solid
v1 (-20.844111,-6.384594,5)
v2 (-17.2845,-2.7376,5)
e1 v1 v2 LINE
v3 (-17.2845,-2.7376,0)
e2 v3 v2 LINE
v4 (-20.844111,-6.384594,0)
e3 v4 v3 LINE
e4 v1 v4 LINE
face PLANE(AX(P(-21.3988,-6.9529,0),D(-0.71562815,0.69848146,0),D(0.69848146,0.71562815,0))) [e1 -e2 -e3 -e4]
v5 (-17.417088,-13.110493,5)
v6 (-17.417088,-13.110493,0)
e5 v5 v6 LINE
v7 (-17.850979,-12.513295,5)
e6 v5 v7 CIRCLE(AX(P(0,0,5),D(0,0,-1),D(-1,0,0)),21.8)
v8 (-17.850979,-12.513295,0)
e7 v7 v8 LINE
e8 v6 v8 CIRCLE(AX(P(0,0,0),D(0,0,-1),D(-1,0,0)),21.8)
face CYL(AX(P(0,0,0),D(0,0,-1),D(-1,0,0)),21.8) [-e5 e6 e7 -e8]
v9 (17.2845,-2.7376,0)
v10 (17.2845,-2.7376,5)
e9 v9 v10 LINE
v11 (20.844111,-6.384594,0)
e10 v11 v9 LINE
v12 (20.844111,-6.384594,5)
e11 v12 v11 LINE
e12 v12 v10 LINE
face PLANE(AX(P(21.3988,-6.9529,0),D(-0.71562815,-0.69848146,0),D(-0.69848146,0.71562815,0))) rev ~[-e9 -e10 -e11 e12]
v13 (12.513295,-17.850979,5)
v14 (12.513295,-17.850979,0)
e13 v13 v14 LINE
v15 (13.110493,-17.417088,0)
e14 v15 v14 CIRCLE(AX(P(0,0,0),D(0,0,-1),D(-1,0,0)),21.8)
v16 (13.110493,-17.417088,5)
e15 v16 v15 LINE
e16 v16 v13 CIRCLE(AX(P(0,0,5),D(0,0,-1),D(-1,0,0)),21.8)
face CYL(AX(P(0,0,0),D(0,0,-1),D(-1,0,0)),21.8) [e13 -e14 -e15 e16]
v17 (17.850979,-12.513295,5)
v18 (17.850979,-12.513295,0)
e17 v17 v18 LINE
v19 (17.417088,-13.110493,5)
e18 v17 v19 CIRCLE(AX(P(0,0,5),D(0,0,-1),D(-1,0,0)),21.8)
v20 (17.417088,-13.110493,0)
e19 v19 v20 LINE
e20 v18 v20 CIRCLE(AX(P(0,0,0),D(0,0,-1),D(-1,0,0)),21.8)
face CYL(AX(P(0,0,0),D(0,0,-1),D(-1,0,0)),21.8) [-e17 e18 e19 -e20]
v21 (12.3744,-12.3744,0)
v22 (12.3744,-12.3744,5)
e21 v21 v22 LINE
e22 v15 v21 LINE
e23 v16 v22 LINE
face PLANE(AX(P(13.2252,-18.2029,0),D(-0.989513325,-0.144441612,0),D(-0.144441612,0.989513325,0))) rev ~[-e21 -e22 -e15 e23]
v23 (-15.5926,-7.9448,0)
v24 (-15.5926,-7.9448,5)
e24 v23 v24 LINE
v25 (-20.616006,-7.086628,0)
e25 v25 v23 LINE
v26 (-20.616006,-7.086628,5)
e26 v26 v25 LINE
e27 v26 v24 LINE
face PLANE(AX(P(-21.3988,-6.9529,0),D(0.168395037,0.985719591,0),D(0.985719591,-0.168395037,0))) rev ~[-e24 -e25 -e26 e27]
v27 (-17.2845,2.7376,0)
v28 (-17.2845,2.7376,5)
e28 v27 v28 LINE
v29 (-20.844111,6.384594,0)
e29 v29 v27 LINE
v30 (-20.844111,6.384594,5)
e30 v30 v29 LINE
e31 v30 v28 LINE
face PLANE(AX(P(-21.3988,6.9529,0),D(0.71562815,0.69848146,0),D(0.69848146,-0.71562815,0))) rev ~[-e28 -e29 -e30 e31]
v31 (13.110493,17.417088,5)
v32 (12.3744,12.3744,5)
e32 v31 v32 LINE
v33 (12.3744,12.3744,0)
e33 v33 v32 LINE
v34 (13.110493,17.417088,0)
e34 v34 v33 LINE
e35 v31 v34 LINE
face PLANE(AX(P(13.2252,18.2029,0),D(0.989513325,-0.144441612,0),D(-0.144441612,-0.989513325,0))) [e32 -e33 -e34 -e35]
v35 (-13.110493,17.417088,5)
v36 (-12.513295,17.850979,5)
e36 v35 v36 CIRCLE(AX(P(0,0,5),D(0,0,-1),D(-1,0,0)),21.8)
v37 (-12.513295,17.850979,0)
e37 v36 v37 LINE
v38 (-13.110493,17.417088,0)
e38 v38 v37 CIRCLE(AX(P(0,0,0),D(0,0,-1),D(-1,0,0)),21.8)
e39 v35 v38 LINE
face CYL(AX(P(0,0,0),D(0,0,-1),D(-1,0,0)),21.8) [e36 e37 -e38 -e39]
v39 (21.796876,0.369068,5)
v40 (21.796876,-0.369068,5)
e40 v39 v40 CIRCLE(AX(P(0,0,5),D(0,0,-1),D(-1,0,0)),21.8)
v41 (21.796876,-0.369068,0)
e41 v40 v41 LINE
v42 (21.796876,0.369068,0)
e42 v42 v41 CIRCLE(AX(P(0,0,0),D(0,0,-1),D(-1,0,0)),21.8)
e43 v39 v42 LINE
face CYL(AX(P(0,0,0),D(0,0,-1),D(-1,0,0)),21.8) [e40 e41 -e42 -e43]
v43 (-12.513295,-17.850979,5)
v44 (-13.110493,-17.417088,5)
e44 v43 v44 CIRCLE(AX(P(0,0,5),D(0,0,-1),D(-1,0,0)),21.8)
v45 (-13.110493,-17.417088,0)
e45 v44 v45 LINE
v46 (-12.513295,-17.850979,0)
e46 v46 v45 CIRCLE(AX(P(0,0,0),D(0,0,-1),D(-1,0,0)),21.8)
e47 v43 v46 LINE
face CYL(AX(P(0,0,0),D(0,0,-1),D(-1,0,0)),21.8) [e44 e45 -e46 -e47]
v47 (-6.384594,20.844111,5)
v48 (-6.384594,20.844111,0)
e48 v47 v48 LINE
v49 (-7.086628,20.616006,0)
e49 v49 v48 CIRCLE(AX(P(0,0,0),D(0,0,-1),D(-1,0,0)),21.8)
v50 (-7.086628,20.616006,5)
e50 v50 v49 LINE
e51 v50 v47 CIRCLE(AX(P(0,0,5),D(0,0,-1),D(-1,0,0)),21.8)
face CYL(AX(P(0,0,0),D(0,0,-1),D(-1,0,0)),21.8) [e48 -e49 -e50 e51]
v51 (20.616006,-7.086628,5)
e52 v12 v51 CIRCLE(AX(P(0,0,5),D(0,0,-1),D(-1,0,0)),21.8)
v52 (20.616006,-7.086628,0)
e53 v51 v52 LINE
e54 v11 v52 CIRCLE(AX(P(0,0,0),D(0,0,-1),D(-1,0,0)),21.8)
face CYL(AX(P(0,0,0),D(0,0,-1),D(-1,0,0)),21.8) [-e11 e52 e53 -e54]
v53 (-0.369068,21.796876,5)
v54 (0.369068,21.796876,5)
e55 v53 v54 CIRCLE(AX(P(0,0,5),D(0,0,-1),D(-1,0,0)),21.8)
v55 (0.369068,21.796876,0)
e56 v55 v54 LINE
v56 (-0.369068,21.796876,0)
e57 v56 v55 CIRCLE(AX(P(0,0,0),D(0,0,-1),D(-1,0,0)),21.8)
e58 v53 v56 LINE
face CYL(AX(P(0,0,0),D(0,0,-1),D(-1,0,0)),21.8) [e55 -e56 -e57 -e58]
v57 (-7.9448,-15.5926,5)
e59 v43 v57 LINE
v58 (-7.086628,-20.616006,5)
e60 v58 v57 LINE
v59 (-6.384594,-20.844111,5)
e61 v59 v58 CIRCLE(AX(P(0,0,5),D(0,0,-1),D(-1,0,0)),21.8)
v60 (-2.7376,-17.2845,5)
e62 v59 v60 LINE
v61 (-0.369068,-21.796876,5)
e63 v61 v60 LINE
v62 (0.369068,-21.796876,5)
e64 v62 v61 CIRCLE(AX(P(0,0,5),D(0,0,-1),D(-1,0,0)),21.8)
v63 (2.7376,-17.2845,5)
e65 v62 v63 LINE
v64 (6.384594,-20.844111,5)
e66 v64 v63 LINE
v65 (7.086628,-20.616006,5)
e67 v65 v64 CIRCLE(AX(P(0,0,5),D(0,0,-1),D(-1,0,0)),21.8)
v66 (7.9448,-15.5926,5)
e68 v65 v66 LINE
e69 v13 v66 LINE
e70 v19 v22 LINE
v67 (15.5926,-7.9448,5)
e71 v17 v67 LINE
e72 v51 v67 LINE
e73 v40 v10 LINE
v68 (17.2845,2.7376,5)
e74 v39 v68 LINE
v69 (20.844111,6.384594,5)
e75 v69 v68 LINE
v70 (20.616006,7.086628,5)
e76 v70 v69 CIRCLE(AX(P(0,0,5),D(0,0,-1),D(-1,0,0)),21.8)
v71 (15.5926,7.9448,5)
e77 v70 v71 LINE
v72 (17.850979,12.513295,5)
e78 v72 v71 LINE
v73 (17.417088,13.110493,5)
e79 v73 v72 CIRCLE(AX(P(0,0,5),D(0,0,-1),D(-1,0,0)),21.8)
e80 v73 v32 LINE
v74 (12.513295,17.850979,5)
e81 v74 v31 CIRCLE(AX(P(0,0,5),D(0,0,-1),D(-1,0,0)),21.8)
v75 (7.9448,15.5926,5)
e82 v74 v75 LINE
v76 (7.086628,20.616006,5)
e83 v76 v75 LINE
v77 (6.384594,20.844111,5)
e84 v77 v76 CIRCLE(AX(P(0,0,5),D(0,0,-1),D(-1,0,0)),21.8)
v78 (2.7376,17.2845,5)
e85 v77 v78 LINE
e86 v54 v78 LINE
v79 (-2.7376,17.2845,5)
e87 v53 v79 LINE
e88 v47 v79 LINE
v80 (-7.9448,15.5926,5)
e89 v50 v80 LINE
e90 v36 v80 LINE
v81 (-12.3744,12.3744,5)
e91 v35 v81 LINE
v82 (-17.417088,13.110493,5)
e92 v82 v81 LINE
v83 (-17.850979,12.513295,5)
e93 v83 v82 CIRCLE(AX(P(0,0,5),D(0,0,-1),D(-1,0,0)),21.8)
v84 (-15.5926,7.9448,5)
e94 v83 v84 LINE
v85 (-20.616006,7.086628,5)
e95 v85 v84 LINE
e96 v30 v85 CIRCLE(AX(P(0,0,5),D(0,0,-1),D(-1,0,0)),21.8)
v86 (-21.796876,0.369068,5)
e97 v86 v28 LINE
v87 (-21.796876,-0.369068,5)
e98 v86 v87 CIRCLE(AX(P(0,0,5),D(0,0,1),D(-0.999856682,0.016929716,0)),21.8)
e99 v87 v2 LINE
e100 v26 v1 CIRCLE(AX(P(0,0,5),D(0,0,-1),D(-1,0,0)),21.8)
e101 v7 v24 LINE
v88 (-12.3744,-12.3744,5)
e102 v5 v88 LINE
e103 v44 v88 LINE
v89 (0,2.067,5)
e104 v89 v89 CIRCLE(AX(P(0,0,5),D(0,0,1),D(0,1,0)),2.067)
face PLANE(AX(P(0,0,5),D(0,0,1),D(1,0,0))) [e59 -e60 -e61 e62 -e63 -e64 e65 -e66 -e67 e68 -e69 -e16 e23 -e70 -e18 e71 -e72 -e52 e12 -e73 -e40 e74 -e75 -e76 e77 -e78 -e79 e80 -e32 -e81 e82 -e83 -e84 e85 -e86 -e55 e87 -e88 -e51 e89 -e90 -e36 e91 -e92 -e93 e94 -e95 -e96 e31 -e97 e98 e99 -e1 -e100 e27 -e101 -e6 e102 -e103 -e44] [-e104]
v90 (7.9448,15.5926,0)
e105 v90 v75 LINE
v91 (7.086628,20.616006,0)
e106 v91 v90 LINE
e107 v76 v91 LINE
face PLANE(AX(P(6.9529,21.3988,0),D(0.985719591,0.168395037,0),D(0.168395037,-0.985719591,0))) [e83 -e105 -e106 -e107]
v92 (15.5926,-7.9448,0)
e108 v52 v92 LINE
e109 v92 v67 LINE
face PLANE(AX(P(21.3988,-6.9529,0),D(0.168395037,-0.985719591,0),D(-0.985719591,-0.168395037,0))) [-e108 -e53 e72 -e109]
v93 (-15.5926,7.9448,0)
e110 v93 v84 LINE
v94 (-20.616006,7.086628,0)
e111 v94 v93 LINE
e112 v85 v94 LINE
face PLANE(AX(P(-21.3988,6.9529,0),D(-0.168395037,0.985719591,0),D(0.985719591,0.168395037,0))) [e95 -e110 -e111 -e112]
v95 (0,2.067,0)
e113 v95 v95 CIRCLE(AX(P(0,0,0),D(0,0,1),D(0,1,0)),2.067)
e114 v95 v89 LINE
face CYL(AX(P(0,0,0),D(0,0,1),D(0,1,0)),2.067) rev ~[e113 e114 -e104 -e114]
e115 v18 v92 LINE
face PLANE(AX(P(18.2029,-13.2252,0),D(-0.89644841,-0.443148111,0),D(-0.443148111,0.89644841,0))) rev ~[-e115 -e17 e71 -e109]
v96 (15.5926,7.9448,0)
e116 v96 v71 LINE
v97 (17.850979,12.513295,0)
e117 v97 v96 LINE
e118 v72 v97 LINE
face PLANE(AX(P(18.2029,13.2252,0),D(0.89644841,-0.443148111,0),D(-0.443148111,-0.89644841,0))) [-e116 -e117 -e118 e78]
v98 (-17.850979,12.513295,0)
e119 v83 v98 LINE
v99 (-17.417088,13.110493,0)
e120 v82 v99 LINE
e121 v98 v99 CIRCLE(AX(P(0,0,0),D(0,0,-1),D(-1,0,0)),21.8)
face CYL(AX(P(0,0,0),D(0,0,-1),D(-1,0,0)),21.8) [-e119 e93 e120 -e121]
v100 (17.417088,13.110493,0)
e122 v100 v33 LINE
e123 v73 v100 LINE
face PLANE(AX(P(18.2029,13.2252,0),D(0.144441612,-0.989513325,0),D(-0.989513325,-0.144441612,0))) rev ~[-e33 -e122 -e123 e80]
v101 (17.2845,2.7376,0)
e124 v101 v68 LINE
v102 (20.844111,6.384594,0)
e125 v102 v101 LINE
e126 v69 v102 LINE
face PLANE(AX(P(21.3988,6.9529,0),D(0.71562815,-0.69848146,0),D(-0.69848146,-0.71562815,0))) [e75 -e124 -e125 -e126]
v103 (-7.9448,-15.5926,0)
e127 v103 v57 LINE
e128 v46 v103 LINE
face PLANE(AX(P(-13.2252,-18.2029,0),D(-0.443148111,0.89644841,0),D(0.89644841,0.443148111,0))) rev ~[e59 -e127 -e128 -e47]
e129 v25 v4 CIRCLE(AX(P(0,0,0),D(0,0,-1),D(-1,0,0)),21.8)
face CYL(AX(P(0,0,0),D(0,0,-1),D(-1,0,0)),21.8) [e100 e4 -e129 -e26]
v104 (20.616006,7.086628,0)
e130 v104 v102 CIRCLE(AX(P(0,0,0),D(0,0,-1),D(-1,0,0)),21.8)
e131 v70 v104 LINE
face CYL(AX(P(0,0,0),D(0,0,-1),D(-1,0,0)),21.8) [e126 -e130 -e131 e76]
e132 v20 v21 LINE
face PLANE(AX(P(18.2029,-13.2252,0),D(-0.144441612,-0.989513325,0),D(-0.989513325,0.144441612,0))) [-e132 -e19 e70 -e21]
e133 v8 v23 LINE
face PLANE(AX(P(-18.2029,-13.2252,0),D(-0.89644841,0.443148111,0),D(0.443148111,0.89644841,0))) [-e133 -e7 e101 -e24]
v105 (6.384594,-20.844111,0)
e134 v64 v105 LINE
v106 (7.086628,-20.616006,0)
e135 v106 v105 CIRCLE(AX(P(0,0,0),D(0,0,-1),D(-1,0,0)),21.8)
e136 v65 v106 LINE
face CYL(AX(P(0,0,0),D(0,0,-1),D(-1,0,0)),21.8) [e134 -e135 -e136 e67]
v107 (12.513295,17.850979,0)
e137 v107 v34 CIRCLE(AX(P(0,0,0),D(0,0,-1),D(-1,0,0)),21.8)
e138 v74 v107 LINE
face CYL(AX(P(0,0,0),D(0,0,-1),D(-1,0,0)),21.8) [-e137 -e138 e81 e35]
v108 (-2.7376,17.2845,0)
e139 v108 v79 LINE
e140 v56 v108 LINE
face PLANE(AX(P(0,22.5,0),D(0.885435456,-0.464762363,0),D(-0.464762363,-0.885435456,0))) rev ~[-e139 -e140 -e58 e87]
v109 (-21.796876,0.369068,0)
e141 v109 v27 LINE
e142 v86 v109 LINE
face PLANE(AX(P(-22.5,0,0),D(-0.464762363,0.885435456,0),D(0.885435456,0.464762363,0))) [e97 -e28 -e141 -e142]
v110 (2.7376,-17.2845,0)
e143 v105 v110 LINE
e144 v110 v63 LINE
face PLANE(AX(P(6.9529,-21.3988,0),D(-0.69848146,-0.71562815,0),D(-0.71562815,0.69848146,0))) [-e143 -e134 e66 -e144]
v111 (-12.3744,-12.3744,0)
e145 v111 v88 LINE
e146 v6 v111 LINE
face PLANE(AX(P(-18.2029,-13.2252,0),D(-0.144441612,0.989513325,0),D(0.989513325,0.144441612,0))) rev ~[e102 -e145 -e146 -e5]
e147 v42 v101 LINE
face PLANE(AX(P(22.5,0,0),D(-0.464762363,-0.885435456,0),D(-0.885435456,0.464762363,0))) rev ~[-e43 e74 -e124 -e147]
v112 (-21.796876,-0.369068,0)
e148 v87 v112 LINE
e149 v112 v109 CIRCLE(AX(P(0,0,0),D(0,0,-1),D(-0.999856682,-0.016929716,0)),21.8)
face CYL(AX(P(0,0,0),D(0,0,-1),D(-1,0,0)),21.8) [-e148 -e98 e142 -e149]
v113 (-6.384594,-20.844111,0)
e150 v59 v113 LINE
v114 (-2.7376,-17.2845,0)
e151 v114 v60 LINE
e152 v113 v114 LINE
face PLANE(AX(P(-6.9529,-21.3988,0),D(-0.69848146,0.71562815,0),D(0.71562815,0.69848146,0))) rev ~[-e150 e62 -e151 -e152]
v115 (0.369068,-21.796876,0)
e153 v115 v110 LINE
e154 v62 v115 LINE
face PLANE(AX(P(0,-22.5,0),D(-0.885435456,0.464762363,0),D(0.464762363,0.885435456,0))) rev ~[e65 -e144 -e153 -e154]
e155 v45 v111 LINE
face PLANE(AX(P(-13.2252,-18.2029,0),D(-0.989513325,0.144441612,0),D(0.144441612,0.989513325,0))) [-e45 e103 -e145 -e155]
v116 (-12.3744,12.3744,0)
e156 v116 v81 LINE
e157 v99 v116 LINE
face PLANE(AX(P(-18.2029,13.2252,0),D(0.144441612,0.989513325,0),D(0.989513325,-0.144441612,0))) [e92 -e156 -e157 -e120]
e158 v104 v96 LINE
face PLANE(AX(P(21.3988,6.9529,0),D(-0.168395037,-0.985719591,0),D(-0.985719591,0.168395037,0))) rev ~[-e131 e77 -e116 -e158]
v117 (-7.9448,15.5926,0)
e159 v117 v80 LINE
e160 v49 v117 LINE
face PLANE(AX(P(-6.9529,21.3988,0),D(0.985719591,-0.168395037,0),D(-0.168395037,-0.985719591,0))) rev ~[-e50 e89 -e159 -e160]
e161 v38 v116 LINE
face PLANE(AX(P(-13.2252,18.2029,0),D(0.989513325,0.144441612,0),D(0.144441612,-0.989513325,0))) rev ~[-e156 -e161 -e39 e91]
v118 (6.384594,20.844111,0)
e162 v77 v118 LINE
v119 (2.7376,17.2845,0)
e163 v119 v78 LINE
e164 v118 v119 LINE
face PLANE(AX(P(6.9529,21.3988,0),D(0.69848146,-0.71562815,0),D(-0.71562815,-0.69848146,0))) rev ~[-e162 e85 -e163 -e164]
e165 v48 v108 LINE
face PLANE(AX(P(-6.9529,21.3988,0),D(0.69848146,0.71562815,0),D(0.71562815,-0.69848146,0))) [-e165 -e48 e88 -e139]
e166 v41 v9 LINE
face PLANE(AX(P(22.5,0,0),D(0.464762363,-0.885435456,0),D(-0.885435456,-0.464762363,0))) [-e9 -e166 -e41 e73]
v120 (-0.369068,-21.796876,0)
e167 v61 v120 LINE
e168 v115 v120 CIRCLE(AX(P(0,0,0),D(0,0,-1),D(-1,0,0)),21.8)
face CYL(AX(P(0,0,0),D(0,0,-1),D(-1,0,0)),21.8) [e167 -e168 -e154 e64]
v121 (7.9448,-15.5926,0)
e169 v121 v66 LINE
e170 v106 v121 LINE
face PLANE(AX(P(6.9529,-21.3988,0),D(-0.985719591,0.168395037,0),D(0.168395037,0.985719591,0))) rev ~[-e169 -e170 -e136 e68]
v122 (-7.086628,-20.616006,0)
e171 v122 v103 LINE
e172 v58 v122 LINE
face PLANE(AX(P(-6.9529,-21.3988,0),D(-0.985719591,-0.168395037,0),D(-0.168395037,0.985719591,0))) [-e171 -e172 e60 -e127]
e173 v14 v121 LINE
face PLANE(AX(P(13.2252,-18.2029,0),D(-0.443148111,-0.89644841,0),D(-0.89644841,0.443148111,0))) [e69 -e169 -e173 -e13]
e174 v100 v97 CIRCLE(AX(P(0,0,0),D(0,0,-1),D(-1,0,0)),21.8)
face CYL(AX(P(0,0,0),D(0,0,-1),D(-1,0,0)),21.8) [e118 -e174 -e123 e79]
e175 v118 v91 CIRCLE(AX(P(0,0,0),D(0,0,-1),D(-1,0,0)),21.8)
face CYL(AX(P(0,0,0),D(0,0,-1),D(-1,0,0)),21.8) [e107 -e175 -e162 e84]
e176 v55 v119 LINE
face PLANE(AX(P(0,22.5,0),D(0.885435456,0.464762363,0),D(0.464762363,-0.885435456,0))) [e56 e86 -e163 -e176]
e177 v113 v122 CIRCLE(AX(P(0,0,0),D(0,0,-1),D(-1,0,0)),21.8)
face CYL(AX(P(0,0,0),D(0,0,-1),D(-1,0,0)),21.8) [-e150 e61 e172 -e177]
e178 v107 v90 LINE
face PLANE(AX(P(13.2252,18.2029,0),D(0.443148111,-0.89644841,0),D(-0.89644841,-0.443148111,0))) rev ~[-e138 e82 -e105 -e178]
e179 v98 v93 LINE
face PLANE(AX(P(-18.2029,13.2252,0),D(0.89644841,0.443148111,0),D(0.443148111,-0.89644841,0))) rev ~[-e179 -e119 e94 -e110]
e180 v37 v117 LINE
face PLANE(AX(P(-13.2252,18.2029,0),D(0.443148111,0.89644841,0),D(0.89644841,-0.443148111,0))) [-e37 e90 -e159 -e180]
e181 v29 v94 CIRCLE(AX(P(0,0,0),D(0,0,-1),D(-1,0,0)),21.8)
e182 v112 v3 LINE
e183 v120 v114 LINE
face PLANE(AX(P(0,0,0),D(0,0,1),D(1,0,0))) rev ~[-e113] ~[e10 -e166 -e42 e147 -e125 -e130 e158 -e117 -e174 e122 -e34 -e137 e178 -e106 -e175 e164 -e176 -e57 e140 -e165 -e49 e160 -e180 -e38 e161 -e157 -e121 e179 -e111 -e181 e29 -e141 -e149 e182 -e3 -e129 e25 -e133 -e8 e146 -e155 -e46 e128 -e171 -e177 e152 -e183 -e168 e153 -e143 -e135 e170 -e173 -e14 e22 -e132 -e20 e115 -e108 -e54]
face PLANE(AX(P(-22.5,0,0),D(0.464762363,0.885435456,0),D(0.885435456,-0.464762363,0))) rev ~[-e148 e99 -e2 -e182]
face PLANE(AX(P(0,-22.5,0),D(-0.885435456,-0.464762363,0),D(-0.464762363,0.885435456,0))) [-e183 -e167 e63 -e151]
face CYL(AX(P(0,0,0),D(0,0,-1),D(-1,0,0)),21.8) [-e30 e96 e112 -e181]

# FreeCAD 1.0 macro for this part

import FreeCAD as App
import Part
import Sketcher
from FreeCAD import Vector
Q = App.Units.Quantity


def add_polygon(sketch, points):
    """Adds a closed chain of lines whose ends are joined by coincident constraints."""
    first, n = sketch.GeometryCount, len(points)
    for a, b in zip(points, points[1:] + points[:1]):
        sketch.addGeometry(Part.LineSegment(App.Vector(*a, 0), App.Vector(*b, 0)), False)
    for i in range(n):
        sketch.addConstraint(Sketcher.Constraint("Coincident", first + i, 2, first + (i + 1) % n, 1))

doc = App.newDocument("Part")
params = doc.addObject("Spreadsheet::Sheet", "Params")
for row, (alias, value) in enumerate([
    ("pad1_length", "5 mm"),
    ("sketch2_diameter", "45 mm"),
    ("sketch2_diameter2", "43.6 mm"),
    ("pocket1_length", "5 mm"),
    ("hole_diameter", "4.134 mm"),
    ("hole_depth", "14.2 mm"),
], start=1):
    params.set(f"A{row}", alias)
    params.set(f"B{row}", "=" + value)
    params.setAlias(f"B{row}", alias)

body = doc.addObject("PartDesign::Body", "Body")

sketch1 = doc.addObject("Sketcher::SketchObject", "Sketch")
body.addObject(sketch1)
sketch1.AttachmentSupport = (doc.XY_Plane, [""])
sketch1.MapMode = "FlatFace"
add_polygon(sketch1, [(17, -3), (22, 0), (17, 3), (21, 7), (16, 8), (18, 13), (12, 12), (13, 18), (8, 16), (7, 21), (3, 17), (0, 22), (-3, 17), (-7, 21), (-8, 16), (-13, 18), (-12, 12), (-18, 13), (-16, 8), (-21, 7), (-17, 3), (-22, 0), (-17, -3), (-21, -7), (-16, -8), (-18, -13), (-12, -12), (-13, -18), (-8, -16), (-7, -21), (-3, -17), (0, -22), (3, -17), (7, -21), (8, -16), (13, -18), (12, -12), (18, -13), (16, -8), (21, -7)])
sketch1.addConstraint([
    Sketcher.Constraint("Symmetric", 0, 2, 20, 2, -1, 1),
    Sketcher.Constraint("Symmetric", 1, 2, 21, 2, -1, 1),
    Sketcher.Constraint("Symmetric", 2, 2, 22, 2, -1, 1),
    Sketcher.Constraint("Symmetric", 3, 2, 23, 2, -1, 1),
    Sketcher.Constraint("Symmetric", 4, 2, 24, 2, -1, 1),
    Sketcher.Constraint("Symmetric", 5, 2, 25, 2, -1, 1),
    Sketcher.Constraint("Symmetric", 6, 2, 26, 2, -1, 1),
    Sketcher.Constraint("Symmetric", 7, 2, 27, 2, -1, 1),
    Sketcher.Constraint("Symmetric", 8, 2, 28, 2, -1, 1),
    Sketcher.Constraint("Symmetric", 9, 2, 29, 2, -1, 1),
    Sketcher.Constraint("Symmetric", 10, 2, 30, 2, -1, 1),
    Sketcher.Constraint("Symmetric", 11, 2, 31, 2, -1, 1),
    Sketcher.Constraint("Symmetric", 12, 2, 32, 2, -1, 1),
    Sketcher.Constraint("Symmetric", 13, 2, 33, 2, -1, 1),
    Sketcher.Constraint("Symmetric", 14, 2, 34, 2, -1, 1),
    Sketcher.Constraint("Symmetric", 15, 2, 35, 2, -1, 1),
    Sketcher.Constraint("Symmetric", 16, 2, 36, 2, -1, 1),
    Sketcher.Constraint("Symmetric", 17, 2, 37, 2, -1, 1),
    Sketcher.Constraint("Symmetric", 18, 2, 38, 2, -1, 1),
    Sketcher.Constraint("Symmetric", 19, 2, 39, 2, -1, 1),
    Sketcher.Constraint("Symmetric", 9, 2, 11, 2, -2),
    Sketcher.Constraint("Symmetric", 8, 2, 12, 2, -2),
    Sketcher.Constraint("Symmetric", 7, 2, 13, 2, -2),
    Sketcher.Constraint("Symmetric", 6, 2, 14, 2, -2),
    Sketcher.Constraint("Symmetric", 5, 2, 15, 2, -2),
    Sketcher.Constraint("Symmetric", 4, 2, 16, 2, -2),
    Sketcher.Constraint("Symmetric", 3, 2, 17, 2, -2),
    Sketcher.Constraint("Symmetric", 2, 2, 18, 2, -2),
    Sketcher.Constraint("Symmetric", 1, 2, 19, 2, -2),
    Sketcher.Constraint("PointOnObject", 0, 2, -1),
    Sketcher.Constraint("PointOnObject", 10, 2, -2),
    Sketcher.Constraint("Perpendicular", 0, 10),
    Sketcher.Constraint("Perpendicular", 2, 12),
    Sketcher.Constraint("Perpendicular", 3, 13),
    Sketcher.Constraint("Perpendicular", 4, 14),
    Sketcher.Constraint("Perpendicular", 5, 15),
    Sketcher.Constraint("Equal", 1, 2),
    Sketcher.Constraint("Equal", 2, 3),
    Sketcher.Constraint("Equal", 3, 4),
    Sketcher.Constraint("Equal", 4, 5),
    Sketcher.Constraint("Equal", 5, 6),
    Sketcher.Constraint("Equal", 6, 7),
    Sketcher.Constraint("Equal", 7, 8),
    Sketcher.Constraint("Equal", 8, 9),
    Sketcher.Constraint("Equal", 9, 10),
    Sketcher.Constraint("DistanceX", -1, 1, 0, 2, Q("22.5 mm")),
    Sketcher.Constraint("DistanceX", 5, 2, 1, 2, Q("4.91 mm")),
    Sketcher.Constraint("DistanceY", 2, 2, 6, 2, Q("11.25 mm")),
    Sketcher.Constraint("DistanceY", -1, 1, 2, 2, Q("6.953 mm")),
    Sketcher.Constraint("DistanceX", 3, 2, 1, 2, Q("1.692 mm")),
    Sketcher.Constraint("DistanceY", 2, 2, 3, 2, Q("0.992 mm")),
])
pad1 = doc.addObject("PartDesign::Pad", "Pad")
body.addObject(pad1)
pad1.Profile = sketch1
pad1.setExpression("Length", "Params.pad1_length")

sketch2 = doc.addObject("Sketcher::SketchObject", "Sketch001")
body.addObject(sketch2)
sketch2.AttachmentSupport = (doc.XY_Plane, [""])
sketch2.MapMode = "FlatFace"
sketch2.addGeometry([
    Part.Circle(Vector(0, 0, 0), Vector(0, 0, 1), 22),
    Part.Circle(Vector(0, 0, 0), Vector(0, 0, 1), 22),
], False)
sketch2.addConstraint([
    Sketcher.Constraint("Coincident", 0, 3, -1, 1),
    Sketcher.Constraint("Coincident", 1, 3, -1, 1),
    Sketcher.Constraint("Diameter", 0, Q("45 mm")),
    Sketcher.Constraint("Diameter", 1, Q("43.6 mm")),
])
sketch2.setExpression("Constraints[2]", "Params.sketch2_diameter")
sketch2.setExpression("Constraints[3]", "Params.sketch2_diameter2")
pocket1 = doc.addObject("PartDesign::Pocket", "Pocket")
body.addObject(pocket1)
pocket1.Profile = sketch2
pocket1.setExpression("Length", "Params.pocket1_length")
pocket1.Reversed = True

sketch3 = doc.addObject("Sketcher::SketchObject", "Sketch002")
body.addObject(sketch3)
sketch3.AttachmentSupport = (doc.XY_Plane, [""])
sketch3.MapMode = "FlatFace"
sketch3.addGeometry(Part.Circle(Vector(0, 0, 0), Vector(0, 0, 1), 2.1), False)
sketch3.addConstraint([
    Sketcher.Constraint("Coincident", 0, 3, -1, 1),
    Sketcher.Constraint("Diameter", 0, Q("4.134 mm")),
])
doc.recompute()
hole = doc.addObject("PartDesign::Hole", "Hole")
body.addObject(hole)
hole.Profile = sketch3
hole.ThreadType = "None"
hole.setExpression("Diameter", "Params.hole_diameter")
hole.DepthType = "Dimension"
hole.setExpression("Depth", "Params.hole_depth")
hole.DrillPoint = "Angled"
hole.DrillPointAngle = 118
hole.Reversed = True

doc.recompute()
